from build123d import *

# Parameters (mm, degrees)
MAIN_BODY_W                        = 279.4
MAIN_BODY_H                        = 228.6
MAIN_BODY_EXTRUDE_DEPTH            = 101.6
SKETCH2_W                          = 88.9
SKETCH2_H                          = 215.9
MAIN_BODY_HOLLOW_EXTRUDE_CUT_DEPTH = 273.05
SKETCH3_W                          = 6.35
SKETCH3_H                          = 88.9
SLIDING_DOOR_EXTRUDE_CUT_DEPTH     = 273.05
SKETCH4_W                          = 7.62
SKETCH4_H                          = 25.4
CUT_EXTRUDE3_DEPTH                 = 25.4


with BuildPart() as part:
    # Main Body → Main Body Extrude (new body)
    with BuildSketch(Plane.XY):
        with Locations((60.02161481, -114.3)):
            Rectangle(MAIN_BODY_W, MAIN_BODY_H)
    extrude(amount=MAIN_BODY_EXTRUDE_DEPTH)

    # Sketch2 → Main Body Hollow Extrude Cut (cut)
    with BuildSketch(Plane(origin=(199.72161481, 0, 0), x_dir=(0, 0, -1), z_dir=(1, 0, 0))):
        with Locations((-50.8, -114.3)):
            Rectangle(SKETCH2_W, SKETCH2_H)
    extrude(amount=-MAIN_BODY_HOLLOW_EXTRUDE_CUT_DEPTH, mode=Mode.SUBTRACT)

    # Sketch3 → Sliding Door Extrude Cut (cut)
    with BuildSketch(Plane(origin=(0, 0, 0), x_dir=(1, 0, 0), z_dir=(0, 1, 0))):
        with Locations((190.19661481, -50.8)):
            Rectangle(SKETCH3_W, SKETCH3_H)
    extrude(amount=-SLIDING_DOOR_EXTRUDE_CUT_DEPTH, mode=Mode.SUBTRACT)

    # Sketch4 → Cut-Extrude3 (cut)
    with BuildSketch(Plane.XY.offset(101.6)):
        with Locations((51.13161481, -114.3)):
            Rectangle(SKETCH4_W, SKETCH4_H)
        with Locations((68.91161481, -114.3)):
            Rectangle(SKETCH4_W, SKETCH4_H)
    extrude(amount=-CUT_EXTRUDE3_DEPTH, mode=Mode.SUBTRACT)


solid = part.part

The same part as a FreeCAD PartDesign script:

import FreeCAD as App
import Part
import Sketcher
from FreeCAD import Vector
Q = App.Units.Quantity

doc = App.newDocument("Part")
body = doc.addObject("PartDesign::Body", "Body")

sketch1 = body.newObject("Sketcher::SketchObject", "Sketch")
sketch1.AttachmentSupport = (doc.getObject("XY_Plane"), [""])
sketch1.MapMode = "FlatFace"
sketch1.addGeometry([
    Part.LineSegment(Vector(-79.678385, 0, 0), Vector(-79.678385, -228.6, 0)),
    Part.LineSegment(Vector(-79.678385, -228.6, 0), Vector(199.721615, -228.6, 0)),
    Part.LineSegment(Vector(199.721615, -228.6, 0), Vector(199.721615, 0, 0)),
    Part.LineSegment(Vector(199.721615, 0, 0), Vector(-79.678385, 0, 0)),
], False)
sketch1.addConstraint([
    Sketcher.Constraint("Coincident", 0, 2, 1, 1),
    Sketcher.Constraint("Coincident", 1, 2, 2, 1),
    Sketcher.Constraint("Coincident", 2, 2, 3, 1),
    Sketcher.Constraint("Coincident", 3, 2, 0, 1),
    Sketcher.Constraint("Vertical", 0),
    Sketcher.Constraint("Horizontal", 1),
    Sketcher.Constraint("Vertical", 2),
    Sketcher.Constraint("Horizontal", 3),
    Sketcher.Constraint("PointOnObject", 2, 2, -1),
    Sketcher.Constraint("DistanceX", 1, 1, 1, 2, Q("11 in")),
    Sketcher.Constraint("DistanceY", 0, 2, 0, 1, Q("9 in")),
    Sketcher.Constraint("DistanceX", 0, 2, -1, 1, Q("79.678385 mm")),
])
pad1 = body.newObject("PartDesign::Pad", "Pad")
pad1.Profile = sketch1
pad1.Length = Q("4 in")

sketch2 = body.newObject("Sketcher::SketchObject", "Sketch001")
sketch2.AttachmentSupport = (doc.getObject("YZ_Plane"), [""])
sketch2.MapMode = "FlatFace"
sketch2.AttachmentOffset = App.Placement(Vector(0, 0, 199.721615), App.Rotation())
sketch2.addGeometry([
    Part.LineSegment(Vector(-6.35, 95.25, 0), Vector(-222.25, 95.25, 0)),
    Part.LineSegment(Vector(-222.25, 95.25, 0), Vector(-222.25, 6.35, 0)),
    Part.LineSegment(Vector(-222.25, 6.35, 0), Vector(-6.35, 6.35, 0)),
    Part.LineSegment(Vector(-6.35, 6.35, 0), Vector(-6.35, 95.25, 0)),
], False)
sketch2.addConstraint([
    Sketcher.Constraint("Coincident", 0, 2, 1, 1),
    Sketcher.Constraint("Coincident", 1, 2, 2, 1),
    Sketcher.Constraint("Coincident", 2, 2, 3, 1),
    Sketcher.Constraint("Coincident", 3, 2, 0, 1),
    Sketcher.Constraint("Horizontal", 0),
    Sketcher.Constraint("Vertical", 1),
    Sketcher.Constraint("Horizontal", 2),
    Sketcher.Constraint("Vertical", 3),
    Sketcher.Constraint("DistanceX", 0, 2, 0, 1, Q("8.5 in")),
    Sketcher.Constraint("DistanceY", 1, 2, 1, 1, Q("3.5 in")),
    Sketcher.Constraint("DistanceX", 0, 2, -1, 1, Q("8.75 in")),
    Sketcher.Constraint("DistanceY", -1, 1, 0, 2, Q("3.75 in")),
])
pocket1 = body.newObject("PartDesign::Pocket", "Pocket")
pocket1.Profile = sketch2
pocket1.Length = Q("10.75 in")

sketch3 = body.newObject("Sketcher::SketchObject", "Sketch002")
sketch3.AttachmentSupport = (doc.getObject("XZ_Plane"), [""])
sketch3.MapMode = "FlatFace"
sketch3.addGeometry([
    Part.LineSegment(Vector(187.021615, 6.35, 0), Vector(187.021615, 95.25, 0)),
    Part.LineSegment(Vector(187.021615, 95.25, 0), Vector(193.371615, 95.25, 0)),
    Part.LineSegment(Vector(193.371615, 95.25, 0), Vector(193.371615, 6.35, 0)),
    Part.LineSegment(Vector(193.371615, 6.35, 0), Vector(187.021615, 6.35, 0)),
], False)
sketch3.addConstraint([
    Sketcher.Constraint("Coincident", 0, 2, 1, 1),
    Sketcher.Constraint("Coincident", 1, 2, 2, 1),
    Sketcher.Constraint("Coincident", 2, 2, 3, 1),
    Sketcher.Constraint("Coincident", 3, 2, 0, 1),
    Sketcher.Constraint("Vertical", 0),
    Sketcher.Constraint("Horizontal", 1),
    Sketcher.Constraint("Vertical", 2),
    Sketcher.Constraint("Horizontal", 3),
    Sketcher.Constraint("DistanceY", 0, 1, 0, 2, Q("3.5 in")),
    Sketcher.Constraint("DistanceX", 1, 1, 1, 2, Q("0.25 in")),
    Sketcher.Constraint("DistanceY", -1, 1, 0, 2, Q("3.75 in")),
    Sketcher.Constraint("DistanceX", -1, 1, 0, 2, Q("187.021615 mm")),
])
pocket2 = body.newObject("PartDesign::Pocket", "Pocket001")
pocket2.Profile = sketch3
pocket2.Length = Q("10.75 in")
pocket2.Reversed = True

sketch4 = body.newObject("Sketcher::SketchObject", "Sketch003")
sketch4.AttachmentSupport = (doc.getObject("XY_Plane"), [""])
sketch4.MapMode = "FlatFace"
sketch4.AttachmentOffset = App.Placement(Vector(0, 0, 4 * 25.4), App.Rotation())
sketch4.addGeometry([
    Part.LineSegment(Vector(47.321615, -101.6, 0), Vector(47.321615, -127, 0)),
    Part.LineSegment(Vector(47.321615, -127, 0), Vector(54.941615, -127, 0)),
    Part.LineSegment(Vector(54.941615, -127, 0), Vector(54.941615, -101.6, 0)),
    Part.LineSegment(Vector(54.941615, -101.6, 0), Vector(47.321615, -101.6, 0)),
    Part.LineSegment(Vector(65.101615, -101.6, 0), Vector(65.101615, -127, 0)),
    Part.LineSegment(Vector(65.101615, -127, 0), Vector(72.721615, -127, 0)),
    Part.LineSegment(Vector(72.721615, -127, 0), Vector(72.721615, -101.6, 0)),
    Part.LineSegment(Vector(72.721615, -101.6, 0), Vector(65.101615, -101.6, 0)),
], False)
sketch4.addConstraint([
    Sketcher.Constraint("Coincident", 0, 2, 1, 1),
    Sketcher.Constraint("Coincident", 1, 2, 2, 1),
    Sketcher.Constraint("Coincident", 2, 2, 3, 1),
    Sketcher.Constraint("Coincident", 3, 2, 0, 1),
    Sketcher.Constraint("Coincident", 4, 2, 5, 1),
    Sketcher.Constraint("Coincident", 5, 2, 6, 1),
    Sketcher.Constraint("Coincident", 6, 2, 7, 1),
    Sketcher.Constraint("Coincident", 7, 2, 4, 1),
    Sketcher.Constraint("Vertical", 0),
    Sketcher.Constraint("Horizontal", 1),
    Sketcher.Constraint("Vertical", 2),
    Sketcher.Constraint("Horizontal", 3),
    Sketcher.Constraint("Vertical", 4),
    Sketcher.Constraint("Horizontal", 5),
    Sketcher.Constraint("Vertical", 6),
    Sketcher.Constraint("Horizontal", 7),
    Sketcher.Constraint("Horizontal", 1, 2, 4, 2),
    Sketcher.Constraint("Horizontal", 3, 2, 6, 2),
    Sketcher.Constraint("Equal", 3, 5),
    Sketcher.Constraint("DistanceY", 0, 2, 0, 1, Q("1 in")),
    Sketcher.Constraint("DistanceX", 1, 1, 1, 2, Q("0.3 in")),
    Sketcher.Constraint("DistanceY", 0, 2, -1, 1, Q("5 in")),
    Sketcher.Constraint("DistanceX", 0, 2, 5, 2, Q("1 in")),
    Sketcher.Constraint("DistanceX", -1, 1, 0, 2, Q("47.321615 mm")),
])
pocket3 = body.newObject("PartDesign::Pocket", "Pocket002")
pocket3.Profile = sketch4
pocket3.Length = Q("1 in")

doc.recompute()
